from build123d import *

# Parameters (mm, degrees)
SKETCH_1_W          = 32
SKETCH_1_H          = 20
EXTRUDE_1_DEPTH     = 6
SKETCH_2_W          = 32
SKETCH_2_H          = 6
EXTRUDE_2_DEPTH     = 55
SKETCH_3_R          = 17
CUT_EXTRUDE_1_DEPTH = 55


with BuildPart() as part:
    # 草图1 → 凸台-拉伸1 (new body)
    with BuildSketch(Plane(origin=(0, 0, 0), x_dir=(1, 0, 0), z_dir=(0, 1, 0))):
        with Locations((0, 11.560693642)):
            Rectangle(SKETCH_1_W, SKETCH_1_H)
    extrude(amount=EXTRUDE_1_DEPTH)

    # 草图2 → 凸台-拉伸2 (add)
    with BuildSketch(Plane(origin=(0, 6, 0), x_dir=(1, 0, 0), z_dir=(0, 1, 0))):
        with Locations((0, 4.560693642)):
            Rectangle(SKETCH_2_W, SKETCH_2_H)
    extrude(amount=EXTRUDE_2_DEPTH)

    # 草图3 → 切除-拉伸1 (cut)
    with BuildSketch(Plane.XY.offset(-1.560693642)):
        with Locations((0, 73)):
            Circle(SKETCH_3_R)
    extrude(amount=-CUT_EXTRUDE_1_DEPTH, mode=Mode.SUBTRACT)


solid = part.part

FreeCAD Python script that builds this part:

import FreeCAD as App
import Part
import Sketcher

V = App.Vector


def add_polygon(sketch, points):
    """Adds a closed chain of lines whose ends are joined by coincident constraints."""
    first, n = sketch.GeometryCount, len(points)
    for a, b in zip(points, points[1:] + points[:1]):
        sketch.addGeometry(Part.LineSegment(App.Vector(*a, 0), App.Vector(*b, 0)), False)
    for i in range(n):
        sketch.addConstraint(Sketcher.Constraint("Coincident", first + i, 2, first + (i + 1) % n, 1))

doc = App.newDocument("Part")
body = doc.addObject("PartDesign::Body", "Body")

sketch1 = body.newObject("Sketcher::SketchObject", "Sketch")
sketch1.AttachmentSupport = (doc.getObject("XZ_Plane"), [""])
sketch1.MapMode = "FlatFace"
add_polygon(sketch1, [(-16, -21.560694), (-16, -1.560694), (16, -1.560694), (16, -21.560694)])
sketch1.addConstraint([
    Sketcher.Constraint("Vertical", 0),
    Sketcher.Constraint("Horizontal", 1),
    Sketcher.Constraint("Vertical", 2),
    Sketcher.Constraint("Horizontal", 3),
    Sketcher.Constraint("DistanceX", 1, 1, 1, 2, 32.0),
    Sketcher.Constraint("DistanceY", 0, 1, 0, 2, 20.0),
    Sketcher.Constraint("DistanceX", 0, 2, -1, 1, 16.0),
    Sketcher.Constraint("DistanceY", 0, 2, -1, 1, 1.560694),
])
pad1 = body.newObject("PartDesign::Pad", "Pad")
pad1.Profile = sketch1
pad1.Length = 6
pad1.Reversed = True

sketch2 = body.newObject("Sketcher::SketchObject", "Sketch001")
sketch2.AttachmentSupport = (doc.getObject("XZ_Plane"), [""])
sketch2.MapMode = "FlatFace"
sketch2.AttachmentOffset = App.Placement(V(0, 0, -6), App.Rotation())
add_polygon(sketch2, [(-16, -7.560694), (-16, -1.560694), (16, -1.560694), (16, -7.560694)])
sketch2.addConstraint([
    Sketcher.Constraint("Vertical", 0),
    Sketcher.Constraint("Horizontal", 1),
    Sketcher.Constraint("Vertical", 2),
    Sketcher.Constraint("Horizontal", 3),
    Sketcher.Constraint("DistanceX", 1, 1, 1, 2, 32.0),
    Sketcher.Constraint("DistanceY", 0, 1, 0, 2, 6.0),
    Sketcher.Constraint("DistanceX", 0, 2, -1, 1, 16.0),
    Sketcher.Constraint("DistanceY", 0, 2, -1, 1, 1.560694),
])
pad2 = body.newObject("PartDesign::Pad", "Pad001")
pad2.Profile = sketch2
pad2.Length = 55
pad2.Reversed = True

sketch3 = body.newObject("Sketcher::SketchObject", "Sketch002")
sketch3.AttachmentSupport = (doc.getObject("XY_Plane"), [""])
sketch3.MapMode = "FlatFace"
sketch3.AttachmentOffset = App.Placement(V(0, 0, -1.560694), App.Rotation())
sketch3.addGeometry(Part.Circle(V(0, 73, 0), V(0, 0, 1), 17), False)
sketch3.addConstraint([
    Sketcher.Constraint("PointOnObject", 0, 3, -2),
    Sketcher.Constraint("Diameter", 0, 34.0),
    Sketcher.Constraint("DistanceY", -1, 1, 0, 3, 73.0),
])
pocket1 = body.newObject("PartDesign::Pocket", "Pocket")
pocket1.Profile = sketch3
pocket1.Length = 55

doc.recompute()
